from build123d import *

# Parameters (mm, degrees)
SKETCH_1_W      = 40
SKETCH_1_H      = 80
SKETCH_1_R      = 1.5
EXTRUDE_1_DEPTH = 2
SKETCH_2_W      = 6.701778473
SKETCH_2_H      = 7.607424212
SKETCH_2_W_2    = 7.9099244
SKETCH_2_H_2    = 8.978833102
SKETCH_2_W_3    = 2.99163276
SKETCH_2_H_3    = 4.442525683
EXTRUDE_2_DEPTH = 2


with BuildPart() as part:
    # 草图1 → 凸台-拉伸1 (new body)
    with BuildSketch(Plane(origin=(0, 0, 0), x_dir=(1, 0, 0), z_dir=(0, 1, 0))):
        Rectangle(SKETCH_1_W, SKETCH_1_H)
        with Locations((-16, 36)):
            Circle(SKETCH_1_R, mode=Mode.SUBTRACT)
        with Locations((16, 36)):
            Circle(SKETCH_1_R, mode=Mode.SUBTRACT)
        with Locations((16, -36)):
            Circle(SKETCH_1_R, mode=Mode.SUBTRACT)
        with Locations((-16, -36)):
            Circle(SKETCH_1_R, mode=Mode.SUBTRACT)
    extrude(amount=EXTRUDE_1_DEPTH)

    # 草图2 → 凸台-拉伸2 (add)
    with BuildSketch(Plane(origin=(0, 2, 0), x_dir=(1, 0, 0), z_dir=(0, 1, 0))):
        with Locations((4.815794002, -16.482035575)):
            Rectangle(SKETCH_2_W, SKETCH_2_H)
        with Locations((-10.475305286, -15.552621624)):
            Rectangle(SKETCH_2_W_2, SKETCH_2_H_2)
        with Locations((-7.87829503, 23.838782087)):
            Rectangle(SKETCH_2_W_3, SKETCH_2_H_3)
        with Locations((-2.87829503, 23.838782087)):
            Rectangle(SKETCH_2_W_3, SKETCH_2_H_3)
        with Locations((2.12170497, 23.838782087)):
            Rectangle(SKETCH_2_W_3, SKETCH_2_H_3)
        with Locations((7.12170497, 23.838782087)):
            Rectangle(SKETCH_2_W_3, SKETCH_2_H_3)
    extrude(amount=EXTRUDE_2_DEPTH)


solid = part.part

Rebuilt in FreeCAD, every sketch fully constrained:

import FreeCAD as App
import Part
import Sketcher

doc = App.newDocument("Part")
params = doc.addObject("Spreadsheet::Sheet", "Params")
for row, (alias, value) in enumerate([
    ("sketch1_diameter", "3 mm"),
    ("sketch1_width", "40 mm"),
    ("sketch1_height", "80 mm"),
    ("pad1_length", "2 mm"),
    ("pad2_length", "2 mm"),
], start=1):
    params.set(f"A{row}", alias)
    params.set(f"B{row}", "=" + value)
    params.setAlias(f"B{row}", alias)

body = doc.addObject("PartDesign::Body", "Body")

# Sketch on XZ plane
sketch1 = body.newObject("Sketcher::SketchObject", "Sketch")
sketch1.AttachmentSupport = (doc.getObject("XZ_Plane"), [""])
sketch1.MapMode = "FlatFace"
sketch1.addGeometry(Part.LineSegment(App.Vector(-20, -40, 0), App.Vector(-20, 40, 0)), False)
sketch1.addGeometry(Part.LineSegment(App.Vector(-20, 40, 0), App.Vector(20, 40, 0)), False)
sketch1.addGeometry(Part.LineSegment(App.Vector(20, 40, 0), App.Vector(20, -40, 0)), False)
sketch1.addGeometry(Part.LineSegment(App.Vector(20, -40, 0), App.Vector(-20, -40, 0)), False)
sketch1.addGeometry(Part.Circle(App.Vector(-16, 36, 0), App.Vector(0, 0, 1), 1.5), False)
sketch1.addGeometry(Part.Circle(App.Vector(16, 36, 0), App.Vector(0, 0, 1), 1.5), False)
sketch1.addGeometry(Part.Circle(App.Vector(-16, -36, 0), App.Vector(0, 0, 1), 1.5), False)
sketch1.addGeometry(Part.Circle(App.Vector(16, -36, 0), App.Vector(0, 0, 1), 1.5), False)
sketch1.addConstraint(Sketcher.Constraint("Coincident", 0, 2, 1, 1))
sketch1.addConstraint(Sketcher.Constraint("Coincident", 1, 2, 2, 1))
sketch1.addConstraint(Sketcher.Constraint("Coincident", 2, 2, 3, 1))
sketch1.addConstraint(Sketcher.Constraint("Coincident", 3, 2, 0, 1))
sketch1.addConstraint(Sketcher.Constraint("Vertical", 0))
sketch1.addConstraint(Sketcher.Constraint("Horizontal", 1))
sketch1.addConstraint(Sketcher.Constraint("Vertical", 2))
sketch1.addConstraint(Sketcher.Constraint("Horizontal", 3))
sketch1.addConstraint(Sketcher.Constraint("Equal", 4, 5))
sketch1.addConstraint(Sketcher.Constraint("Equal", 5, 6))
sketch1.addConstraint(Sketcher.Constraint("Equal", 6, 7))
sketch1.addConstraint(Sketcher.Constraint("Symmetric", 5, 3, 6, 3, -1, 1))
sketch1.addConstraint(Sketcher.Constraint("Symmetric", 4, 3, 7, 3, -1, 1))
sketch1.addConstraint(Sketcher.Constraint("Symmetric", 0, 2, 2, 2, -1, 1))
sketch1.addConstraint(Sketcher.Constraint("Symmetric", 4, 3, 5, 3, -2))
sketch1.addConstraint(Sketcher.Constraint("Diameter", 4, 3.0))
sketch1.addConstraint(Sketcher.Constraint("DistanceX", 1, 1, 1, 2, 40.0))
sketch1.addConstraint(Sketcher.Constraint("DistanceY", 0, 1, 0, 2, 80.0))
sketch1.addConstraint(Sketcher.Constraint("DistanceX", 4, 3, -1, 1, 16.0))
sketch1.addConstraint(Sketcher.Constraint("DistanceY", -1, 1, 4, 3, 36.0))
sketch1.setExpression("Constraints[15]", "Params.sketch1_diameter")
sketch1.setExpression("Constraints[16]", "Params.sketch1_width")
sketch1.setExpression("Constraints[17]", "Params.sketch1_height")
pad1 = body.newObject("PartDesign::Pad", "Pad")
pad1.Profile = sketch1
pad1.setExpression("Length", "Params.pad1_length")
pad1.Reversed = True

# Sketch on XZ plane
sketch2 = body.newObject("Sketcher::SketchObject", "Sketch001")
sketch2.AttachmentSupport = (doc.getObject("XZ_Plane"), [""])
sketch2.MapMode = "FlatFace"
sketch2.AttachmentOffset = App.Placement(App.Vector(0, 0, -2), App.Rotation())
sketch2.addGeometry(Part.LineSegment(App.Vector(1.5, 12.7, 0), App.Vector(1.5, 20.3, 0)), False)
sketch2.addGeometry(Part.LineSegment(App.Vector(1.5, 20.3, 0), App.Vector(8.2, 20.3, 0)), False)
sketch2.addGeometry(Part.LineSegment(App.Vector(8.2, 20.3, 0), App.Vector(8.2, 12.7, 0)), False)
sketch2.addGeometry(Part.LineSegment(App.Vector(8.2, 12.7, 0), App.Vector(1.5, 12.7, 0)), False)
sketch2.addGeometry(Part.LineSegment(App.Vector(-14.4, 11.1, 0), App.Vector(-14.4, 20, 0)), False)
sketch2.addGeometry(Part.LineSegment(App.Vector(-14.4, 20, 0), App.Vector(-6.5, 20, 0)), False)
sketch2.addGeometry(Part.LineSegment(App.Vector(-6.5, 20, 0), App.Vector(-6.5, 11.1, 0)), False)
sketch2.addGeometry(Part.LineSegment(App.Vector(-6.5, 11.1, 0), App.Vector(-14.4, 11.1, 0)), False)
sketch2.addGeometry(Part.LineSegment(App.Vector(-9.4, -26.1, 0), App.Vector(-9.4, -21.6, 0)), False)
sketch2.addGeometry(Part.LineSegment(App.Vector(-9.4, -21.6, 0), App.Vector(-6.4, -21.6, 0)), False)
sketch2.addGeometry(Part.LineSegment(App.Vector(-6.4, -21.6, 0), App.Vector(-6.4, -26.1, 0)), False)
sketch2.addGeometry(Part.LineSegment(App.Vector(-6.4, -26.1, 0), App.Vector(-9.4, -26.1, 0)), False)
sketch2.addGeometry(Part.LineSegment(App.Vector(-4.4, -26.1, 0), App.Vector(-4.4, -21.6, 0)), False)
sketch2.addGeometry(Part.LineSegment(App.Vector(-4.4, -21.6, 0), App.Vector(-1.4, -21.6, 0)), False)
sketch2.addGeometry(Part.LineSegment(App.Vector(-1.4, -21.6, 0), App.Vector(-1.4, -26.1, 0)), False)
sketch2.addGeometry(Part.LineSegment(App.Vector(-1.4, -26.1, 0), App.Vector(-4.4, -26.1, 0)), False)
sketch2.addGeometry(Part.LineSegment(App.Vector(0.6, -26.1, 0), App.Vector(0.6, -21.6, 0)), False)
sketch2.addGeometry(Part.LineSegment(App.Vector(0.6, -21.6, 0), App.Vector(3.6, -21.6, 0)), False)
sketch2.addGeometry(Part.LineSegment(App.Vector(3.6, -21.6, 0), App.Vector(3.6, -26.1, 0)), False)
sketch2.addGeometry(Part.LineSegment(App.Vector(3.6, -26.1, 0), App.Vector(0.6, -26.1, 0)), False)
sketch2.addGeometry(Part.LineSegment(App.Vector(5.6, -26.1, 0), App.Vector(5.6, -21.6, 0)), False)
sketch2.addGeometry(Part.LineSegment(App.Vector(5.6, -21.6, 0), App.Vector(8.6, -21.6, 0)), False)
sketch2.addGeometry(Part.LineSegment(App.Vector(8.6, -21.6, 0), App.Vector(8.6, -26.1, 0)), False)
sketch2.addGeometry(Part.LineSegment(App.Vector(8.6, -26.1, 0), App.Vector(5.6, -26.1, 0)), False)
sketch2.addConstraint(Sketcher.Constraint("Coincident", 0, 2, 1, 1))
sketch2.addConstraint(Sketcher.Constraint("Coincident", 1, 2, 2, 1))
sketch2.addConstraint(Sketcher.Constraint("Coincident", 2, 2, 3, 1))
sketch2.addConstraint(Sketcher.Constraint("Coincident", 3, 2, 0, 1))
sketch2.addConstraint(Sketcher.Constraint("Coincident", 4, 2, 5, 1))
sketch2.addConstraint(Sketcher.Constraint("Coincident", 5, 2, 6, 1))
sketch2.addConstraint(Sketcher.Constraint("Coincident", 6, 2, 7, 1))
sketch2.addConstraint(Sketcher.Constraint("Coincident", 7, 2, 4, 1))
sketch2.addConstraint(Sketcher.Constraint("Coincident", 8, 2, 9, 1))
sketch2.addConstraint(Sketcher.Constraint("Coincident", 9, 2, 10, 1))
sketch2.addConstraint(Sketcher.Constraint("Coincident", 10, 2, 11, 1))
sketch2.addConstraint(Sketcher.Constraint("Coincident", 11, 2, 8, 1))
sketch2.addConstraint(Sketcher.Constraint("Coincident", 12, 2, 13, 1))
sketch2.addConstraint(Sketcher.Constraint("Coincident", 13, 2, 14, 1))
sketch2.addConstraint(Sketcher.Constraint("Coincident", 14, 2, 15, 1))
sketch2.addConstraint(Sketcher.Constraint("Coincident", 15, 2, 12, 1))
sketch2.addConstraint(Sketcher.Constraint("Coincident", 16, 2, 17, 1))
sketch2.addConstraint(Sketcher.Constraint("Coincident", 17, 2, 18, 1))
sketch2.addConstraint(Sketcher.Constraint("Coincident", 18, 2, 19, 1))
sketch2.addConstraint(Sketcher.Constraint("Coincident", 19, 2, 16, 1))
sketch2.addConstraint(Sketcher.Constraint("Coincident", 20, 2, 21, 1))
sketch2.addConstraint(Sketcher.Constraint("Coincident", 21, 2, 22, 1))
sketch2.addConstraint(Sketcher.Constraint("Coincident", 22, 2, 23, 1))
sketch2.addConstraint(Sketcher.Constraint("Coincident", 23, 2, 20, 1))
sketch2.addConstraint(Sketcher.Constraint("Vertical", 0))
sketch2.addConstraint(Sketcher.Constraint("Horizontal", 1))
sketch2.addConstraint(Sketcher.Constraint("Vertical", 2))
sketch2.addConstraint(Sketcher.Constraint("Horizontal", 3))
sketch2.addConstraint(Sketcher.Constraint("Vertical", 4))
sketch2.addConstraint(Sketcher.Constraint("Horizontal", 5))
sketch2.addConstraint(Sketcher.Constraint("Vertical", 6))
sketch2.addConstraint(Sketcher.Constraint("Horizontal", 7))
sketch2.addConstraint(Sketcher.Constraint("Vertical", 8))
sketch2.addConstraint(Sketcher.Constraint("Horizontal", 9))
sketch2.addConstraint(Sketcher.Constraint("Vertical", 10))
sketch2.addConstraint(Sketcher.Constraint("Horizontal", 11))
sketch2.addConstraint(Sketcher.Constraint("Vertical", 12))
sketch2.addConstraint(Sketcher.Constraint("Horizontal", 13))
sketch2.addConstraint(Sketcher.Constraint("Vertical", 14))
sketch2.addConstraint(Sketcher.Constraint("Horizontal", 15))
sketch2.addConstraint(Sketcher.Constraint("Vertical", 16))
sketch2.addConstraint(Sketcher.Constraint("Horizontal", 17))
sketch2.addConstraint(Sketcher.Constraint("Vertical", 18))
sketch2.addConstraint(Sketcher.Constraint("Horizontal", 19))
sketch2.addConstraint(Sketcher.Constraint("Vertical", 20))
sketch2.addConstraint(Sketcher.Constraint("Horizontal", 21))
sketch2.addConstraint(Sketcher.Constraint("Vertical", 22))
sketch2.addConstraint(Sketcher.Constraint("Horizontal", 23))
sketch2.addConstraint(Sketcher.Constraint("Horizontal", 9, 2, 12, 2))
sketch2.addConstraint(Sketcher.Constraint("Horizontal", 11, 2, 14, 2))
sketch2.addConstraint(Sketcher.Constraint("Horizontal", 13, 2, 16, 2))
sketch2.addConstraint(Sketcher.Constraint("Horizontal", 15, 2, 18, 2))
sketch2.addConstraint(Sketcher.Constraint("Horizontal", 17, 2, 20, 2))
sketch2.addConstraint(Sketcher.Constraint("Horizontal", 19, 2, 22, 2))
sketch2.addConstraint(Sketcher.Constraint("Equal", 11, 13))
sketch2.addConstraint(Sketcher.Constraint("Equal", 15, 17))
sketch2.addConstraint(Sketcher.Constraint("Equal", 19, 21))
sketch2.addConstraint(Sketcher.Constraint("DistanceX", 8, 2, 12, 2, 5.0))
sketch2.addConstraint(Sketcher.Constraint("DistanceX", 12, 2, 16, 2, 5.0))
sketch2.addConstraint(Sketcher.Constraint("DistanceX", 16, 2, 20, 2, 5.0))
sketch2.addConstraint(Sketcher.Constraint("DistanceX", 1, 1, 1, 2, 6.701778))
sketch2.addConstraint(Sketcher.Constraint("DistanceX", 5, 1, 5, 2, 7.909924))
sketch2.addConstraint(Sketcher.Constraint("DistanceX", 9, 1, 9, 2, 2.991633))
sketch2.addConstraint(Sketcher.Constraint("DistanceY", 0, 1, 0, 2, 7.607424))
sketch2.addConstraint(Sketcher.Constraint("DistanceY", 4, 1, 4, 2, 8.978833))
sketch2.addConstraint(Sketcher.Constraint("DistanceY", 8, 1, 8, 2, 4.442526))
sketch2.addConstraint(Sketcher.Constraint("DistanceY", -1, 1, 4, 2, 20.042038))
sketch2.addConstraint(Sketcher.Constraint("DistanceX", 8, 2, -1, 1, 9.374111))
sketch2.addConstraint(Sketcher.Constraint("DistanceY", 8, 2, -1, 1, 21.617519))
sketch2.addConstraint(Sketcher.Constraint("DistanceY", 4, 2, 0, 2, 0.24371))
sketch2.addConstraint(Sketcher.Constraint("DistanceX", 4, 2, 1, 2, 22.596951))
sketch2.addConstraint(Sketcher.Constraint("DistanceX", 8, 2, 6, 2, 2.853768))
pad2 = body.newObject("PartDesign::Pad", "Pad001")
pad2.Profile = sketch2
pad2.setExpression("Length", "Params.pad2_length")
pad2.Reversed = True

doc.recompute()
